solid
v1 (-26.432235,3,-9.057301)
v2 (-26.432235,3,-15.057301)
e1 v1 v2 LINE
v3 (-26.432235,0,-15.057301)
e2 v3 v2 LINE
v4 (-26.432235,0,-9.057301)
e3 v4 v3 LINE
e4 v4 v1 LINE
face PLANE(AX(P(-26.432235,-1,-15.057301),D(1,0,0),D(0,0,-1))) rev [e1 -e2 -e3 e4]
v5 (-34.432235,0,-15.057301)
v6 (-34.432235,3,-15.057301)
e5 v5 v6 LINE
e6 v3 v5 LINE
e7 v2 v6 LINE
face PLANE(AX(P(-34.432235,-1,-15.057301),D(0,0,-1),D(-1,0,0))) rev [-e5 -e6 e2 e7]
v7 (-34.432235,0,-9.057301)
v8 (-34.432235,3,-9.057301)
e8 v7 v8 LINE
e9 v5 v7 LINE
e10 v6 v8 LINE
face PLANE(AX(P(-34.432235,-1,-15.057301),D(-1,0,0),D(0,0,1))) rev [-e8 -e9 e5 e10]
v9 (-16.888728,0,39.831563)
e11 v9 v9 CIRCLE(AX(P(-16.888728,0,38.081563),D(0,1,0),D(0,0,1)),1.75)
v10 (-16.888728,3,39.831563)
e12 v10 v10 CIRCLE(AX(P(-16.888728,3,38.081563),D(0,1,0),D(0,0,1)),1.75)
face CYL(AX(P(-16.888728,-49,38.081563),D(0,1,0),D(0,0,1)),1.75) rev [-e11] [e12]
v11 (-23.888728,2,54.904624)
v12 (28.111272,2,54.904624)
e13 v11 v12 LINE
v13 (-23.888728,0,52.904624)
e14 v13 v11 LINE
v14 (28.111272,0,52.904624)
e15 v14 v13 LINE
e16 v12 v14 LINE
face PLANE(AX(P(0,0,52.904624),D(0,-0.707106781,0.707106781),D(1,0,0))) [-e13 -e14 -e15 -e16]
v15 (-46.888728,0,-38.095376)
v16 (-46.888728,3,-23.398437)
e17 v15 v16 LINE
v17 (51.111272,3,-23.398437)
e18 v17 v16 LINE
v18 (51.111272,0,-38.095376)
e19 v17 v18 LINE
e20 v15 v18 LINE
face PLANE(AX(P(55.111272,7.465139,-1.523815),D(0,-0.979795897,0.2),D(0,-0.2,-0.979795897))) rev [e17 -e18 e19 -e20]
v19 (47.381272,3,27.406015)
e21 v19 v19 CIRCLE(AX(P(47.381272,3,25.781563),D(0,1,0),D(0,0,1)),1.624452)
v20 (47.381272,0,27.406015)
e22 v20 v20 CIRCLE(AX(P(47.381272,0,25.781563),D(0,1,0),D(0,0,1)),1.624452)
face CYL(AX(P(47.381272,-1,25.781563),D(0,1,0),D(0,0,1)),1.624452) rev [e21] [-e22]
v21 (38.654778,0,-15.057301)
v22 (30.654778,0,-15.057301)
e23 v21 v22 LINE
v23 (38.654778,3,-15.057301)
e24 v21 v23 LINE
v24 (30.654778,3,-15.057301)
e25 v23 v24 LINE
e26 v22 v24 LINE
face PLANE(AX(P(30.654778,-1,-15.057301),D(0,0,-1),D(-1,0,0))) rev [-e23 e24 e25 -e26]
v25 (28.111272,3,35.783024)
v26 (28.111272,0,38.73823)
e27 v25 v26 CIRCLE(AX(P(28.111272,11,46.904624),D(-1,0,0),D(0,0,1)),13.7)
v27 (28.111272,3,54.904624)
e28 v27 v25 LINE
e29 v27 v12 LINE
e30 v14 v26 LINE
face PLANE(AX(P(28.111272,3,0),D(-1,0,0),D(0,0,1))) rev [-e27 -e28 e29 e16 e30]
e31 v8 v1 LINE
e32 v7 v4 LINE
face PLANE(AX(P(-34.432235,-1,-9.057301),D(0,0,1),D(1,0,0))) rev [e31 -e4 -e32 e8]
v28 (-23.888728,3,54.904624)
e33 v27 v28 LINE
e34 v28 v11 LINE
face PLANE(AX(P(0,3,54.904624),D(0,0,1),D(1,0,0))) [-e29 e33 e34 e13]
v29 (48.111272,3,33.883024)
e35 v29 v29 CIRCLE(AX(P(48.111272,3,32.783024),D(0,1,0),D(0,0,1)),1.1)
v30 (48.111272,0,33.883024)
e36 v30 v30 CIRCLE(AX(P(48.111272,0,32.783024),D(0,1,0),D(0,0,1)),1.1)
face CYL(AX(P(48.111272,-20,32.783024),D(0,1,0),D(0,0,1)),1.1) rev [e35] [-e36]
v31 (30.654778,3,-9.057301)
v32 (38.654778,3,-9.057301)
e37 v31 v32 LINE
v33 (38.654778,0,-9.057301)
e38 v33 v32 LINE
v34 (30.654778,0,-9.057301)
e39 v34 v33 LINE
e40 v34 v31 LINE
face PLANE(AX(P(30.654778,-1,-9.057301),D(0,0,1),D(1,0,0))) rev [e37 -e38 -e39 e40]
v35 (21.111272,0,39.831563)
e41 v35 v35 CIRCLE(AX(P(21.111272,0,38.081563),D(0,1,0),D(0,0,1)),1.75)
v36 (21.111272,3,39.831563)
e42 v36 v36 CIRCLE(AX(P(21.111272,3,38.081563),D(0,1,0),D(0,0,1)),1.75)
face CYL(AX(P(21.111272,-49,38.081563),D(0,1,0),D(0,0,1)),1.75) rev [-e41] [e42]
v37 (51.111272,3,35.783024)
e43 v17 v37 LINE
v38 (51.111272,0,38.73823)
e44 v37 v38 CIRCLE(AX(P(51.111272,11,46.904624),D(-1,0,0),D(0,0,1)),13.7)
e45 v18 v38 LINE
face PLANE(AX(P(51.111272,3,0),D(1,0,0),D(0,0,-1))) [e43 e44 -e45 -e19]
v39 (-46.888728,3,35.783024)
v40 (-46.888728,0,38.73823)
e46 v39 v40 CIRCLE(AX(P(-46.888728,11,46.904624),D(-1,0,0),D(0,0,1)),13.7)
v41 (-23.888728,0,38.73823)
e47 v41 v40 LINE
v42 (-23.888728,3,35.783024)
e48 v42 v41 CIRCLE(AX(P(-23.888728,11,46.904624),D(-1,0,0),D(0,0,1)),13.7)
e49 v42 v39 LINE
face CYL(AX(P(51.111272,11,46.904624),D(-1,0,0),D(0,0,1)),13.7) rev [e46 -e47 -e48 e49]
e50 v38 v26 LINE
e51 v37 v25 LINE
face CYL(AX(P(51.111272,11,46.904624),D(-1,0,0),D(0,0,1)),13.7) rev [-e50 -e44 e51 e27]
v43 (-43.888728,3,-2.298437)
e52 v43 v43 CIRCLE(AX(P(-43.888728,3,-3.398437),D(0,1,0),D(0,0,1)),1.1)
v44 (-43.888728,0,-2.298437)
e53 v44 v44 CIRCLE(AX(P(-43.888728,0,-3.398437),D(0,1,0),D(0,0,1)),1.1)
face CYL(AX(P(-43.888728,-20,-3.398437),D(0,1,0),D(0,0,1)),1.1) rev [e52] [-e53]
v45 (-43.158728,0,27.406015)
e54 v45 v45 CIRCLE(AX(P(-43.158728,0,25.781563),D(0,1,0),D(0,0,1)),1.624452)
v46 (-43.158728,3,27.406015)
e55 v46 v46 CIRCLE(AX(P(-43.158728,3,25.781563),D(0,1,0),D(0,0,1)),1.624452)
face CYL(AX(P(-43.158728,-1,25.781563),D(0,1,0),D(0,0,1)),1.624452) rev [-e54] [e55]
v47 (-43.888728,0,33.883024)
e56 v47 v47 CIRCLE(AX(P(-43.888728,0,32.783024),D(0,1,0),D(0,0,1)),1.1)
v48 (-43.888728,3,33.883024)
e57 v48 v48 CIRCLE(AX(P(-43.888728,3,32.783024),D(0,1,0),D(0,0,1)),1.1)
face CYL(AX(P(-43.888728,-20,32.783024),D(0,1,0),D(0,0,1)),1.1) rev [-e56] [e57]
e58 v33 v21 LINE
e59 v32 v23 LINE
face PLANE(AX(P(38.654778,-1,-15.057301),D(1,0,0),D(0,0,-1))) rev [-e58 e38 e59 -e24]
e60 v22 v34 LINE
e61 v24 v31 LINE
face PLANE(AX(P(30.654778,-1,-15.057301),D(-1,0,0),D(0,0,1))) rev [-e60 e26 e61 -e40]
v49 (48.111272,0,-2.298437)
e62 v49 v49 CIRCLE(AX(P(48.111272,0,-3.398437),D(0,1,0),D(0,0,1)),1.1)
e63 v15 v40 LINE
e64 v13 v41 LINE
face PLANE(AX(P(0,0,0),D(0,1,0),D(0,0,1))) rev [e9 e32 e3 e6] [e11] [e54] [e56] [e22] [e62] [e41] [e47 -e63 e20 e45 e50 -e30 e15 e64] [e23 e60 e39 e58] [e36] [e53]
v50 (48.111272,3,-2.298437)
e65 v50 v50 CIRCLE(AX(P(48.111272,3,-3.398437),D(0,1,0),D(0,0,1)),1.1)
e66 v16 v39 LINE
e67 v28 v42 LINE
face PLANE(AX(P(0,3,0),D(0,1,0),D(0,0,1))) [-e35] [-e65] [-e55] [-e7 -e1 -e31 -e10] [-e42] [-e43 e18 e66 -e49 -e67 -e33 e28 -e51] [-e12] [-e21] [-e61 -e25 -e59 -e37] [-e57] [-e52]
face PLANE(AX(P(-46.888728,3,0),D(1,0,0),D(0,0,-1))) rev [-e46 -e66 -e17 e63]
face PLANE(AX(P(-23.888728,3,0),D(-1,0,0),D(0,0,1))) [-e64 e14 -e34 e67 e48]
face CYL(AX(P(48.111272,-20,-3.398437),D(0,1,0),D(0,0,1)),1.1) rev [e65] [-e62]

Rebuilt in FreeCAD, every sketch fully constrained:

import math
import FreeCAD as App
import Part
import Sketcher
from FreeCAD import Vector
Q = App.Units.Quantity


def edges_at(feature, points):
    """Names of the edges that pass closest to the given points."""
    edges = feature.Shape.Edges
    near = lambda p: min(range(len(edges)), key=lambda i: edges[i].distToShape(Part.Vertex(*p))[0])
    return sorted({f"Edge{near(p) + 1}" for p in points})

doc = App.newDocument("Part")
params = doc.addObject("Spreadsheet::Sheet", "Params")
for row, (alias, value) in enumerate([
    ("sketch1_width", "98 mm"),
    ("sketch1_width2", "23 mm"),
    ("sketch1_height", "75 mm"),
    ("sketch1_height2", "18 mm"),
    ("pad1_length", "3 mm"),
    ("sketch2_width", "3 mm"),
    ("sketch2_length", "15 mm"),
    ("pocket1_length", "102 mm"),
    ("sketch3_radius", "13.7 mm"),
    ("pad2_length", "98 mm"),
    ("sketch4_radius", "13.7 mm"),
    ("sketch4_height", "10 mm"),
    ("pocket2_length", "23 mm"),
    ("sketch5_radius", "13.7 mm"),
    ("sketch5_height", "10 mm"),
    ("pocket3_length", "23 mm"),
    ("chamfer_size", "2 mm"),
    ("sketch6_diameter", "2.2 mm"),
    ("pocket4_length", "23 mm"),
    ("sketch7_diameter", "3.5 mm"),
    ("pocket5_length", "52 mm"),
    ("pocket6_length", "4 mm"),
    ("pocket7_length", "4 mm"),
    ("sketch10_width", "8 mm"),
    ("sketch10_height", "6 mm"),
    ("pocket8_length", "4 mm"),
], start=1):
    params.set(f"A{row}", alias)
    params.set(f"B{row}", "=" + value)
    params.setAlias(f"B{row}", alias)

body = doc.addObject("PartDesign::Body", "Body")

sketch1 = body.newObject("Sketcher::SketchObject", "Sketch")
sketch1.AttachmentSupport = (doc.getObject("XZ_Plane"), [""])
sketch1.MapMode = "FlatFace"
sketch1.addGeometry([
    Part.LineSegment(Vector(51.111272, -38.095376, 0), Vector(-46.888728, -38.095376, 0)),
    Part.LineSegment(Vector(-46.888728, -38.095376, 0), Vector(-46.888728, 36.904624, 0)),
    Part.LineSegment(Vector(-46.888728, 36.904624, 0), Vector(-23.888728, 36.904624, 0)),
    Part.LineSegment(Vector(-23.888728, 36.904624, 0), Vector(-23.888728, 54.904624, 0)),
    Part.LineSegment(Vector(-23.888728, 54.904624, 0), Vector(28.111272, 54.904624, 0)),
    Part.LineSegment(Vector(28.111272, 54.904624, 0), Vector(28.111272, 36.904624, 0)),
    Part.LineSegment(Vector(28.111272, 36.904624, 0), Vector(51.111272, 36.904624, 0)),
    Part.LineSegment(Vector(51.111272, 36.904624, 0), Vector(51.111272, -38.095376, 0)),
], False)
sketch1.addConstraint([
    Sketcher.Constraint("Coincident", 0, 2, 1, 1),
    Sketcher.Constraint("Coincident", 1, 2, 2, 1),
    Sketcher.Constraint("Coincident", 2, 2, 3, 1),
    Sketcher.Constraint("Coincident", 3, 2, 4, 1),
    Sketcher.Constraint("Coincident", 4, 2, 5, 1),
    Sketcher.Constraint("Coincident", 5, 2, 6, 1),
    Sketcher.Constraint("Coincident", 6, 2, 7, 1),
    Sketcher.Constraint("Coincident", 7, 2, 0, 1),
    Sketcher.Constraint("Horizontal", 0),
    Sketcher.Constraint("Vertical", 1),
    Sketcher.Constraint("Horizontal", 2),
    Sketcher.Constraint("Vertical", 3),
    Sketcher.Constraint("Horizontal", 4),
    Sketcher.Constraint("Vertical", 5),
    Sketcher.Constraint("Horizontal", 6),
    Sketcher.Constraint("Vertical", 7),
    Sketcher.Constraint("Horizontal", 2, 2, 5, 2),
    Sketcher.Constraint("Equal", 2, 6),
    Sketcher.Constraint("DistanceX", 0, 2, 0, 1, Q("98 mm")),
    Sketcher.Constraint("DistanceX", 2, 1, 2, 2, Q("23 mm")),
    Sketcher.Constraint("DistanceY", 1, 1, 1, 2, Q("75 mm")),
    Sketcher.Constraint("DistanceY", 3, 1, 3, 2, Q("18 mm")),
    Sketcher.Constraint("DistanceX", 0, 2, -1, 1, Q("46.888728 mm")),
    Sketcher.Constraint("DistanceY", 0, 2, -1, 1, Q("38.095376 mm")),
])
sketch1.setExpression("Constraints[18]", "Params.sketch1_width")
sketch1.setExpression("Constraints[19]", "Params.sketch1_width2")
sketch1.setExpression("Constraints[20]", "Params.sketch1_height")
sketch1.setExpression("Constraints[21]", "Params.sketch1_height2")
pad1 = body.newObject("PartDesign::Pad", "Pad")
pad1.Profile = sketch1
pad1.setExpression("Length", "Params.pad1_length")
pad1.Reversed = True

sketch2 = body.newObject("Sketcher::SketchObject", "Sketch001")
sketch2.AttachmentSupport = (doc.getObject("YZ_Plane"), [""])
sketch2.MapMode = "FlatFace"
sketch2.AttachmentOffset = App.Placement(Vector(0, 0, -46.888728), App.Rotation())
sketch2.addGeometry([
    Part.LineSegment(Vector(3, -38.095376, 0), Vector(0, -38.095376, 0)),
    Part.LineSegment(Vector(0, -38.095376, 0), Vector(3, -23.398437, 0)),
    Part.LineSegment(Vector(3, -23.398437, 0), Vector(3, -38.095376, 0)),
], False)
sketch2.addConstraint([
    Sketcher.Constraint("Coincident", 0, 2, 1, 1),
    Sketcher.Constraint("Coincident", 1, 2, 2, 1),
    Sketcher.Constraint("Coincident", 2, 2, 0, 1),
    Sketcher.Constraint("Horizontal", 0),
    Sketcher.Constraint("Vertical", 2),
    Sketcher.Constraint("PointOnObject", 0, 2, -2),
    Sketcher.Constraint("DistanceX", 0, 2, 0, 1, Q("3 mm")),
    Sketcher.Constraint("Distance", 1, Q("15 mm")),
    Sketcher.Constraint("DistanceY", 0, 2, -1, 1, Q("38.095376 mm")),
])
sketch2.setExpression("Constraints[6]", "Params.sketch2_width")
sketch2.setExpression("Constraints[7]", "Params.sketch2_length")
pocket1 = body.newObject("PartDesign::Pocket", "Pocket")
pocket1.Profile = sketch2
pocket1.setExpression("Length", "Params.pocket1_length")
pocket1.Reversed = True

sketch3 = body.newObject("Sketcher::SketchObject", "Sketch002")
sketch3.AttachmentSupport = (doc.getObject("YZ_Plane"), [""])
sketch3.MapMode = "FlatFace"
sketch3.AttachmentOffset = App.Placement(Vector(0, 0, -46.888728), App.Rotation())
sketch3.addGeometry([
    Part.LineSegment(Vector(1.635706, 36.904624, 0), Vector(0, 36.904624, 0)),
    Part.LineSegment(Vector(0, 36.904624, 0), Vector(0, 38.73823, 0)),
    Part.ArcOfCircle(Part.Circle(Vector(11, 46.904624, 0), Vector(0, 0, 1), 13.7), math.radians(-143.409825), math.radians(-133.119725)),
], False)
sketch3.addConstraint([
    Sketcher.Constraint("Coincident", 0, 2, 1, 1),
    Sketcher.Constraint("Coincident", 1, 2, 2, 1),
    Sketcher.Constraint("Coincident", 2, 2, 0, 1),
    Sketcher.Constraint("Horizontal", 0),
    Sketcher.Constraint("Vertical", 1),
    Sketcher.Constraint("PointOnObject", 0, 2, -2),
    Sketcher.Constraint("Radius", 2, Q("13.7 mm")),
    Sketcher.Constraint("DistanceX", -1, 1, 2, 3, Q("11 mm")),
    Sketcher.Constraint("DistanceY", 0, 2, 2, 3, Q("10 mm")),
    Sketcher.Constraint("DistanceY", -1, 1, 1, 2, Q("38.73823 mm")),
])
sketch3.setExpression("Constraints[6]", "Params.sketch3_radius")
pad2 = body.newObject("PartDesign::Pad", "Pad001")
pad2.Profile = sketch3
pad2.setExpression("Length", "Params.pad2_length")

sketch4 = body.newObject("Sketcher::SketchObject", "Sketch003")
sketch4.AttachmentSupport = (doc.getObject("YZ_Plane"), [""])
sketch4.MapMode = "FlatFace"
sketch4.AttachmentOffset = App.Placement(Vector(0, 0, -46.888728), App.Rotation())
sketch4.addGeometry([
    Part.ArcOfCircle(Part.Circle(Vector(11, 46.904624, 0), Vector(0, 0, 1), 13.7), math.radians(-133.119725), math.radians(-125.728254)),
    Part.LineSegment(Vector(1.635706, 36.904624, 0), Vector(3, 36.904624, 0)),
    Part.LineSegment(Vector(3, 36.904624, 0), Vector(3, 35.783024, 0)),
], False)
sketch4.addConstraint([
    Sketcher.Constraint("Coincident", 0, 1, 1, 1),
    Sketcher.Constraint("Coincident", 1, 2, 2, 1),
    Sketcher.Constraint("Coincident", 2, 2, 0, 2),
    Sketcher.Constraint("Horizontal", 1),
    Sketcher.Constraint("Vertical", 2),
    Sketcher.Constraint("Radius", 0, Q("13.7 mm")),
    Sketcher.Constraint("DistanceX", -1, 1, 0, 3, Q("11 mm")),
    Sketcher.Constraint("DistanceX", -1, 1, 1, 2, Q("3 mm")),
    Sketcher.Constraint("DistanceY", 0, 1, 0, 3, Q("10 mm")),
    Sketcher.Constraint("DistanceY", -1, 1, 0, 3, Q("46.904624 mm")),
])
sketch4.setExpression("Constraints[5]", "Params.sketch4_radius")
sketch4.setExpression("Constraints[8]", "Params.sketch4_height")
pocket2 = body.newObject("PartDesign::Pocket", "Pocket001")
pocket2.Profile = sketch4
pocket2.setExpression("Length", "Params.pocket2_length")
pocket2.Reversed = True

sketch5 = body.newObject("Sketcher::SketchObject", "Sketch004")
sketch5.AttachmentSupport = (doc.getObject("YZ_Plane"), [""])
sketch5.MapMode = "FlatFace"
sketch5.AttachmentOffset = App.Placement(Vector(0, 0, 28.111272), App.Rotation())
sketch5.addGeometry([
    Part.ArcOfCircle(Part.Circle(Vector(11, 46.904624, 0), Vector(0, 0, 1), 13.7), math.radians(-133.119725), math.radians(-125.728254)),
    Part.LineSegment(Vector(1.635706, 36.904624, 0), Vector(3, 36.904624, 0)),
    Part.LineSegment(Vector(3, 36.904624, 0), Vector(3, 35.783024, 0)),
], False)
sketch5.addConstraint([
    Sketcher.Constraint("Coincident", 0, 1, 1, 1),
    Sketcher.Constraint("Coincident", 1, 2, 2, 1),
    Sketcher.Constraint("Coincident", 2, 2, 0, 2),
    Sketcher.Constraint("Horizontal", 1),
    Sketcher.Constraint("Vertical", 2),
    Sketcher.Constraint("Radius", 0, Q("13.7 mm")),
    Sketcher.Constraint("DistanceX", -1, 1, 0, 3, Q("11 mm")),
    Sketcher.Constraint("DistanceX", -1, 1, 1, 2, Q("3 mm")),
    Sketcher.Constraint("DistanceY", 0, 1, 0, 3, Q("10 mm")),
    Sketcher.Constraint("DistanceY", -1, 1, 0, 3, Q("46.904624 mm")),
])
sketch5.setExpression("Constraints[5]", "Params.sketch5_radius")
sketch5.setExpression("Constraints[8]", "Params.sketch5_height")
pocket3 = body.newObject("PartDesign::Pocket", "Pocket002")
pocket3.Profile = sketch5
pocket3.setExpression("Length", "Params.pocket3_length")
pocket3.Reversed = True
doc.recompute()

chamfer = body.newObject("PartDesign::Chamfer", "Chamfer")
chamfer.Base = (pocket3, edges_at(pocket3, [(2.111, 0, 54.905)]))
chamfer.setExpression("Size", "Params.chamfer_size")

sketch6 = body.newObject("Sketcher::SketchObject", "Sketch005")
sketch6.AttachmentSupport = (doc.getObject("XZ_Plane"), [""])
sketch6.MapMode = "FlatFace"
sketch6.AttachmentOffset = App.Placement(Vector(0, 0, -3), App.Rotation())
sketch6.addGeometry([
    Part.Circle(Vector(-43.888728, -3.398437, 0), Vector(0, 0, 1), 1.1),
    Part.Circle(Vector(-43.888728, 32.783024, 0), Vector(0, 0, 1), 1.1),
    Part.Circle(Vector(48.111272, 32.783024, 0), Vector(0, 0, 1), 1.1),
    Part.Circle(Vector(48.111272, -3.398437, 0), Vector(0, 0, 1), 1.1),
], False)
sketch6.addConstraint([
    Sketcher.Constraint("Equal", 0, 1),
    Sketcher.Constraint("Equal", 1, 2),
    Sketcher.Constraint("Equal", 2, 3),
    Sketcher.Constraint("Horizontal", 1, 3, 2, 3),
    Sketcher.Constraint("Horizontal", 0, 3, 3, 3),
    Sketcher.Constraint("Vertical", 0, 3, 1, 3),
    Sketcher.Constraint("Vertical", 2, 3, 3, 3),
    Sketcher.Constraint("Diameter", 0, Q("2.2 mm")),
    Sketcher.Constraint("DistanceX", 1, 3, 2, 3, Q("92 mm")),
    Sketcher.Constraint("DistanceX", 0, 3, -1, 1, Q("43.888728 mm")),
    Sketcher.Constraint("DistanceY", 0, 3, 1, 3, Q("36.181461 mm")),
    Sketcher.Constraint("DistanceY", 0, 3, -1, 1, Q("3.398437 mm")),
])
sketch6.setExpression("Constraints[7]", "Params.sketch6_diameter")
pocket4 = body.newObject("PartDesign::Pocket", "Pocket003")
pocket4.Profile = sketch6
pocket4.setExpression("Length", "Params.pocket4_length")
pocket4.Reversed = True

sketch7 = body.newObject("Sketcher::SketchObject", "Sketch006")
sketch7.AttachmentSupport = (doc.getObject("XZ_Plane"), [""])
sketch7.MapMode = "FlatFace"
sketch7.AttachmentOffset = App.Placement(Vector(0, 0, -3), App.Rotation())
sketch7.addGeometry([
    Part.Circle(Vector(-16.888728, 38.081563, 0), Vector(0, 0, 1), 1.75),
    Part.Circle(Vector(21.111272, 38.081563, 0), Vector(0, 0, 1), 1.75),
], False)
sketch7.addConstraint([
    Sketcher.Constraint("Equal", 0, 1),
    Sketcher.Constraint("Horizontal", 0, 3, 1, 3),
    Sketcher.Constraint("Diameter", 0, Q("3.5 mm")),
    Sketcher.Constraint("DistanceX", 0, 3, 1, 3, Q("38 mm")),
    Sketcher.Constraint("DistanceX", 0, 3, -1, 1, Q("16.888728 mm")),
    Sketcher.Constraint("DistanceY", -1, 1, 0, 3, Q("38.081563 mm")),
])
sketch7.setExpression("Constraints[2]", "Params.sketch7_diameter")
pocket5 = body.newObject("PartDesign::Pocket", "Pocket004")
pocket5.Profile = sketch7
pocket5.setExpression("Length", "Params.pocket5_length")
pocket5.Reversed = True

sketch8 = body.newObject("Sketcher::SketchObject", "Sketch007")
sketch8.AttachmentSupport = (doc.getObject("XZ_Plane"), [""])
sketch8.MapMode = "FlatFace"
sketch8.AttachmentOffset = App.Placement(Vector(0, 0, -3), App.Rotation())
sketch8.addGeometry(Part.Circle(Vector(47.381272, 25.781563, 0), Vector(0, 0, 1), 1.624452), False)
sketch8.addConstraint([
    Sketcher.Constraint("Diameter", 0, Q("3.248904 mm")),
    Sketcher.Constraint("DistanceX", -1, 1, 0, 3, Q("47.381272 mm")),
    Sketcher.Constraint("DistanceY", -1, 1, 0, 3, Q("25.781563 mm")),
])
pocket6 = body.newObject("PartDesign::Pocket", "Pocket005")
pocket6.Profile = sketch8
pocket6.setExpression("Length", "Params.pocket6_length")
pocket6.Reversed = True

sketch9 = body.newObject("Sketcher::SketchObject", "Sketch008")
sketch9.AttachmentSupport = (doc.getObject("XZ_Plane"), [""])
sketch9.MapMode = "FlatFace"
sketch9.AttachmentOffset = App.Placement(Vector(0, 0, -3), App.Rotation())
sketch9.addGeometry(Part.Circle(Vector(-43.158728, 25.781563, 0), Vector(0, 0, 1), 1.624452), False)
sketch9.addConstraint([
    Sketcher.Constraint("Diameter", 0, Q("3.248904 mm")),
    Sketcher.Constraint("DistanceX", 0, 3, -1, 1, Q("43.158728 mm")),
    Sketcher.Constraint("DistanceY", -1, 1, 0, 3, Q("25.781563 mm")),
])
pocket7 = body.newObject("PartDesign::Pocket", "Pocket006")
pocket7.Profile = sketch9
pocket7.setExpression("Length", "Params.pocket7_length")
pocket7.Reversed = True

sketch10 = body.newObject("Sketcher::SketchObject", "Sketch009")
sketch10.AttachmentSupport = (doc.getObject("XZ_Plane"), [""])
sketch10.MapMode = "FlatFace"
sketch10.AttachmentOffset = App.Placement(Vector(0, 0, -3), App.Rotation())
sketch10.addGeometry([
    Part.LineSegment(Vector(-34.432235, -15.057301, 0), Vector(-34.432235, -9.057301, 0)),
    Part.LineSegment(Vector(-34.432235, -9.057301, 0), Vector(-26.432235, -9.057301, 0)),
    Part.LineSegment(Vector(-26.432235, -9.057301, 0), Vector(-26.432235, -15.057301, 0)),
    Part.LineSegment(Vector(-26.432235, -15.057301, 0), Vector(-34.432235, -15.057301, 0)),
    Part.LineSegment(Vector(30.654778, -15.057301, 0), Vector(30.654778, -9.057301, 0)),
    Part.LineSegment(Vector(30.654778, -9.057301, 0), Vector(38.654778, -9.057301, 0)),
    Part.LineSegment(Vector(38.654778, -9.057301, 0), Vector(38.654778, -15.057301, 0)),
    Part.LineSegment(Vector(38.654778, -15.057301, 0), Vector(30.654778, -15.057301, 0)),
], False)
sketch10.addConstraint([
    Sketcher.Constraint("Coincident", 0, 2, 1, 1),
    Sketcher.Constraint("Coincident", 1, 2, 2, 1),
    Sketcher.Constraint("Coincident", 2, 2, 3, 1),
    Sketcher.Constraint("Coincident", 3, 2, 0, 1),
    Sketcher.Constraint("Coincident", 4, 2, 5, 1),
    Sketcher.Constraint("Coincident", 5, 2, 6, 1),
    Sketcher.Constraint("Coincident", 6, 2, 7, 1),
    Sketcher.Constraint("Coincident", 7, 2, 4, 1),
    Sketcher.Constraint("Vertical", 0),
    Sketcher.Constraint("Horizontal", 1),
    Sketcher.Constraint("Vertical", 2),
    Sketcher.Constraint("Horizontal", 3),
    Sketcher.Constraint("Vertical", 4),
    Sketcher.Constraint("Horizontal", 5),
    Sketcher.Constraint("Vertical", 6),
    Sketcher.Constraint("Horizontal", 7),
    Sketcher.Constraint("Horizontal", 1, 2, 4, 2),
    Sketcher.Constraint("Horizontal", 3, 2, 6, 2),
    Sketcher.Constraint("Equal", 3, 5),
    Sketcher.Constraint("DistanceX", 1, 1, 1, 2, Q("8 mm")),
    Sketcher.Constraint("DistanceY", 0, 1, 0, 2, Q("6 mm")),
    Sketcher.Constraint("DistanceY", 0, 2, -1, 1, Q("9.057301 mm")),
    Sketcher.Constraint("DistanceX", -1, 1, 4, 2, Q("30.654778 mm")),
    Sketcher.Constraint("DistanceX", 0, 2, -1, 1, Q("34.432235 mm")),
])
sketch10.setExpression("Constraints[19]", "Params.sketch10_width")
sketch10.setExpression("Constraints[20]", "Params.sketch10_height")
pocket8 = body.newObject("PartDesign::Pocket", "Pocket007")
pocket8.Profile = sketch10
pocket8.setExpression("Length", "Params.pocket8_length")
pocket8.Reversed = True

doc.recompute()
